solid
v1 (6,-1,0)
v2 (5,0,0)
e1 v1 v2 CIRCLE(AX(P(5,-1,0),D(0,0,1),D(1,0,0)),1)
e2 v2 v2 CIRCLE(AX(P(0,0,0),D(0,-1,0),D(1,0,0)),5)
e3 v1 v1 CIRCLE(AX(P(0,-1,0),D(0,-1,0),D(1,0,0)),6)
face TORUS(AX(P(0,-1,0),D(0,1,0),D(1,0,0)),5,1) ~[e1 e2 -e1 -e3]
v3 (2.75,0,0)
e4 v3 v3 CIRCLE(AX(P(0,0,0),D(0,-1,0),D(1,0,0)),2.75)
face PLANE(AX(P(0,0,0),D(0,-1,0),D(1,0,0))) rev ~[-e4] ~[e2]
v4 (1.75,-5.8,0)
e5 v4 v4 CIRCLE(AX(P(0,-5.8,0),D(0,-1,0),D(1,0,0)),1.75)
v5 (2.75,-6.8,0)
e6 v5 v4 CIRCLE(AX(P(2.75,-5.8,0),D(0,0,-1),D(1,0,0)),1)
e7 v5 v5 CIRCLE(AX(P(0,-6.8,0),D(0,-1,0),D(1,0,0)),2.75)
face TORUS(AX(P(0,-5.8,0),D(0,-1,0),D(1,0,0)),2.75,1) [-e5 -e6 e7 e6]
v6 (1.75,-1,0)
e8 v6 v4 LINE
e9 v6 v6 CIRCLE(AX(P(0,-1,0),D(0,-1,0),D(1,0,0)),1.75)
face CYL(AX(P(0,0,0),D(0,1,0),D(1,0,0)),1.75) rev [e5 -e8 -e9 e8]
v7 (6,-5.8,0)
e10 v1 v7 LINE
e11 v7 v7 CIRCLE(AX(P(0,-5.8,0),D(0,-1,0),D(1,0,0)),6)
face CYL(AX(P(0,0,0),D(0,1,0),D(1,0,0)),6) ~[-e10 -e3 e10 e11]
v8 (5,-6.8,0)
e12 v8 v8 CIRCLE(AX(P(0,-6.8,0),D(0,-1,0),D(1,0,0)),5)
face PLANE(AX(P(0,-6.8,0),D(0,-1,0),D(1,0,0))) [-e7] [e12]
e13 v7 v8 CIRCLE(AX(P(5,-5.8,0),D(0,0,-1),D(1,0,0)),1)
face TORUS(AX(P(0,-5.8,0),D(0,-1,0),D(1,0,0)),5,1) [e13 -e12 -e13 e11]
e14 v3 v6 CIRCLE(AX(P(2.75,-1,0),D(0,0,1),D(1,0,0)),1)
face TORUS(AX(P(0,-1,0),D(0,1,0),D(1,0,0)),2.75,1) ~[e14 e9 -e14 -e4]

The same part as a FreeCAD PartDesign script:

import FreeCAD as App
import Part
import Sketcher
Q = App.Units.Quantity


def edges_at(feature, points):
    """Names of the edges that pass closest to the given points."""
    edges = feature.Shape.Edges
    near = lambda p: min(range(len(edges)), key=lambda i: edges[i].distToShape(Part.Vertex(*p))[0])
    return sorted({f"Edge{near(p) + 1}" for p in points})

doc = App.newDocument("Part")
body = doc.addObject("PartDesign::Body", "Body")

sketch1 = doc.addObject("Sketcher::SketchObject", "Sketch")
body.addObject(sketch1)
sketch1.AttachmentSupport = (doc.XZ_Plane, [""])
sketch1.MapMode = "FlatFace"
sketch1.addGeometry(Part.Circle(App.Vector(0, 0, 0), App.Vector(0, 0, 1), 6), False)
sketch1.addGeometry(Part.Circle(App.Vector(0, 0, 0), App.Vector(0, 0, 1), 1.75), False)
sketch1.addConstraint(Sketcher.Constraint("Coincident", 0, 3, -1, 1))
sketch1.addConstraint(Sketcher.Constraint("Coincident", 1, 3, -1, 1))
sketch1.addConstraint(Sketcher.Constraint("Diameter", 0, Q("12 mm")))
sketch1.addConstraint(Sketcher.Constraint("Diameter", 1, Q("3.5 mm")))
pad1 = doc.addObject("PartDesign::Pad", "Pad")
body.addObject(pad1)
pad1.Profile = sketch1
pad1.Length = 6.8
doc.recompute()

fillet = doc.addObject("PartDesign::Fillet", "Fillet")
body.addObject(fillet)
fillet.Base = (pad1, edges_at(pad1, [(-6, -6.8, 0), (-6, 0, 0)]))
fillet.Radius = 1
doc.recompute()

fillet2 = doc.addObject("PartDesign::Fillet", "Fillet001")
body.addObject(fillet2)
fillet2.Base = (fillet, edges_at(fillet, [(-1.75, -6.8, 0), (-1.75, 0, 0)]))
fillet2.Radius = 1

doc.recompute()
